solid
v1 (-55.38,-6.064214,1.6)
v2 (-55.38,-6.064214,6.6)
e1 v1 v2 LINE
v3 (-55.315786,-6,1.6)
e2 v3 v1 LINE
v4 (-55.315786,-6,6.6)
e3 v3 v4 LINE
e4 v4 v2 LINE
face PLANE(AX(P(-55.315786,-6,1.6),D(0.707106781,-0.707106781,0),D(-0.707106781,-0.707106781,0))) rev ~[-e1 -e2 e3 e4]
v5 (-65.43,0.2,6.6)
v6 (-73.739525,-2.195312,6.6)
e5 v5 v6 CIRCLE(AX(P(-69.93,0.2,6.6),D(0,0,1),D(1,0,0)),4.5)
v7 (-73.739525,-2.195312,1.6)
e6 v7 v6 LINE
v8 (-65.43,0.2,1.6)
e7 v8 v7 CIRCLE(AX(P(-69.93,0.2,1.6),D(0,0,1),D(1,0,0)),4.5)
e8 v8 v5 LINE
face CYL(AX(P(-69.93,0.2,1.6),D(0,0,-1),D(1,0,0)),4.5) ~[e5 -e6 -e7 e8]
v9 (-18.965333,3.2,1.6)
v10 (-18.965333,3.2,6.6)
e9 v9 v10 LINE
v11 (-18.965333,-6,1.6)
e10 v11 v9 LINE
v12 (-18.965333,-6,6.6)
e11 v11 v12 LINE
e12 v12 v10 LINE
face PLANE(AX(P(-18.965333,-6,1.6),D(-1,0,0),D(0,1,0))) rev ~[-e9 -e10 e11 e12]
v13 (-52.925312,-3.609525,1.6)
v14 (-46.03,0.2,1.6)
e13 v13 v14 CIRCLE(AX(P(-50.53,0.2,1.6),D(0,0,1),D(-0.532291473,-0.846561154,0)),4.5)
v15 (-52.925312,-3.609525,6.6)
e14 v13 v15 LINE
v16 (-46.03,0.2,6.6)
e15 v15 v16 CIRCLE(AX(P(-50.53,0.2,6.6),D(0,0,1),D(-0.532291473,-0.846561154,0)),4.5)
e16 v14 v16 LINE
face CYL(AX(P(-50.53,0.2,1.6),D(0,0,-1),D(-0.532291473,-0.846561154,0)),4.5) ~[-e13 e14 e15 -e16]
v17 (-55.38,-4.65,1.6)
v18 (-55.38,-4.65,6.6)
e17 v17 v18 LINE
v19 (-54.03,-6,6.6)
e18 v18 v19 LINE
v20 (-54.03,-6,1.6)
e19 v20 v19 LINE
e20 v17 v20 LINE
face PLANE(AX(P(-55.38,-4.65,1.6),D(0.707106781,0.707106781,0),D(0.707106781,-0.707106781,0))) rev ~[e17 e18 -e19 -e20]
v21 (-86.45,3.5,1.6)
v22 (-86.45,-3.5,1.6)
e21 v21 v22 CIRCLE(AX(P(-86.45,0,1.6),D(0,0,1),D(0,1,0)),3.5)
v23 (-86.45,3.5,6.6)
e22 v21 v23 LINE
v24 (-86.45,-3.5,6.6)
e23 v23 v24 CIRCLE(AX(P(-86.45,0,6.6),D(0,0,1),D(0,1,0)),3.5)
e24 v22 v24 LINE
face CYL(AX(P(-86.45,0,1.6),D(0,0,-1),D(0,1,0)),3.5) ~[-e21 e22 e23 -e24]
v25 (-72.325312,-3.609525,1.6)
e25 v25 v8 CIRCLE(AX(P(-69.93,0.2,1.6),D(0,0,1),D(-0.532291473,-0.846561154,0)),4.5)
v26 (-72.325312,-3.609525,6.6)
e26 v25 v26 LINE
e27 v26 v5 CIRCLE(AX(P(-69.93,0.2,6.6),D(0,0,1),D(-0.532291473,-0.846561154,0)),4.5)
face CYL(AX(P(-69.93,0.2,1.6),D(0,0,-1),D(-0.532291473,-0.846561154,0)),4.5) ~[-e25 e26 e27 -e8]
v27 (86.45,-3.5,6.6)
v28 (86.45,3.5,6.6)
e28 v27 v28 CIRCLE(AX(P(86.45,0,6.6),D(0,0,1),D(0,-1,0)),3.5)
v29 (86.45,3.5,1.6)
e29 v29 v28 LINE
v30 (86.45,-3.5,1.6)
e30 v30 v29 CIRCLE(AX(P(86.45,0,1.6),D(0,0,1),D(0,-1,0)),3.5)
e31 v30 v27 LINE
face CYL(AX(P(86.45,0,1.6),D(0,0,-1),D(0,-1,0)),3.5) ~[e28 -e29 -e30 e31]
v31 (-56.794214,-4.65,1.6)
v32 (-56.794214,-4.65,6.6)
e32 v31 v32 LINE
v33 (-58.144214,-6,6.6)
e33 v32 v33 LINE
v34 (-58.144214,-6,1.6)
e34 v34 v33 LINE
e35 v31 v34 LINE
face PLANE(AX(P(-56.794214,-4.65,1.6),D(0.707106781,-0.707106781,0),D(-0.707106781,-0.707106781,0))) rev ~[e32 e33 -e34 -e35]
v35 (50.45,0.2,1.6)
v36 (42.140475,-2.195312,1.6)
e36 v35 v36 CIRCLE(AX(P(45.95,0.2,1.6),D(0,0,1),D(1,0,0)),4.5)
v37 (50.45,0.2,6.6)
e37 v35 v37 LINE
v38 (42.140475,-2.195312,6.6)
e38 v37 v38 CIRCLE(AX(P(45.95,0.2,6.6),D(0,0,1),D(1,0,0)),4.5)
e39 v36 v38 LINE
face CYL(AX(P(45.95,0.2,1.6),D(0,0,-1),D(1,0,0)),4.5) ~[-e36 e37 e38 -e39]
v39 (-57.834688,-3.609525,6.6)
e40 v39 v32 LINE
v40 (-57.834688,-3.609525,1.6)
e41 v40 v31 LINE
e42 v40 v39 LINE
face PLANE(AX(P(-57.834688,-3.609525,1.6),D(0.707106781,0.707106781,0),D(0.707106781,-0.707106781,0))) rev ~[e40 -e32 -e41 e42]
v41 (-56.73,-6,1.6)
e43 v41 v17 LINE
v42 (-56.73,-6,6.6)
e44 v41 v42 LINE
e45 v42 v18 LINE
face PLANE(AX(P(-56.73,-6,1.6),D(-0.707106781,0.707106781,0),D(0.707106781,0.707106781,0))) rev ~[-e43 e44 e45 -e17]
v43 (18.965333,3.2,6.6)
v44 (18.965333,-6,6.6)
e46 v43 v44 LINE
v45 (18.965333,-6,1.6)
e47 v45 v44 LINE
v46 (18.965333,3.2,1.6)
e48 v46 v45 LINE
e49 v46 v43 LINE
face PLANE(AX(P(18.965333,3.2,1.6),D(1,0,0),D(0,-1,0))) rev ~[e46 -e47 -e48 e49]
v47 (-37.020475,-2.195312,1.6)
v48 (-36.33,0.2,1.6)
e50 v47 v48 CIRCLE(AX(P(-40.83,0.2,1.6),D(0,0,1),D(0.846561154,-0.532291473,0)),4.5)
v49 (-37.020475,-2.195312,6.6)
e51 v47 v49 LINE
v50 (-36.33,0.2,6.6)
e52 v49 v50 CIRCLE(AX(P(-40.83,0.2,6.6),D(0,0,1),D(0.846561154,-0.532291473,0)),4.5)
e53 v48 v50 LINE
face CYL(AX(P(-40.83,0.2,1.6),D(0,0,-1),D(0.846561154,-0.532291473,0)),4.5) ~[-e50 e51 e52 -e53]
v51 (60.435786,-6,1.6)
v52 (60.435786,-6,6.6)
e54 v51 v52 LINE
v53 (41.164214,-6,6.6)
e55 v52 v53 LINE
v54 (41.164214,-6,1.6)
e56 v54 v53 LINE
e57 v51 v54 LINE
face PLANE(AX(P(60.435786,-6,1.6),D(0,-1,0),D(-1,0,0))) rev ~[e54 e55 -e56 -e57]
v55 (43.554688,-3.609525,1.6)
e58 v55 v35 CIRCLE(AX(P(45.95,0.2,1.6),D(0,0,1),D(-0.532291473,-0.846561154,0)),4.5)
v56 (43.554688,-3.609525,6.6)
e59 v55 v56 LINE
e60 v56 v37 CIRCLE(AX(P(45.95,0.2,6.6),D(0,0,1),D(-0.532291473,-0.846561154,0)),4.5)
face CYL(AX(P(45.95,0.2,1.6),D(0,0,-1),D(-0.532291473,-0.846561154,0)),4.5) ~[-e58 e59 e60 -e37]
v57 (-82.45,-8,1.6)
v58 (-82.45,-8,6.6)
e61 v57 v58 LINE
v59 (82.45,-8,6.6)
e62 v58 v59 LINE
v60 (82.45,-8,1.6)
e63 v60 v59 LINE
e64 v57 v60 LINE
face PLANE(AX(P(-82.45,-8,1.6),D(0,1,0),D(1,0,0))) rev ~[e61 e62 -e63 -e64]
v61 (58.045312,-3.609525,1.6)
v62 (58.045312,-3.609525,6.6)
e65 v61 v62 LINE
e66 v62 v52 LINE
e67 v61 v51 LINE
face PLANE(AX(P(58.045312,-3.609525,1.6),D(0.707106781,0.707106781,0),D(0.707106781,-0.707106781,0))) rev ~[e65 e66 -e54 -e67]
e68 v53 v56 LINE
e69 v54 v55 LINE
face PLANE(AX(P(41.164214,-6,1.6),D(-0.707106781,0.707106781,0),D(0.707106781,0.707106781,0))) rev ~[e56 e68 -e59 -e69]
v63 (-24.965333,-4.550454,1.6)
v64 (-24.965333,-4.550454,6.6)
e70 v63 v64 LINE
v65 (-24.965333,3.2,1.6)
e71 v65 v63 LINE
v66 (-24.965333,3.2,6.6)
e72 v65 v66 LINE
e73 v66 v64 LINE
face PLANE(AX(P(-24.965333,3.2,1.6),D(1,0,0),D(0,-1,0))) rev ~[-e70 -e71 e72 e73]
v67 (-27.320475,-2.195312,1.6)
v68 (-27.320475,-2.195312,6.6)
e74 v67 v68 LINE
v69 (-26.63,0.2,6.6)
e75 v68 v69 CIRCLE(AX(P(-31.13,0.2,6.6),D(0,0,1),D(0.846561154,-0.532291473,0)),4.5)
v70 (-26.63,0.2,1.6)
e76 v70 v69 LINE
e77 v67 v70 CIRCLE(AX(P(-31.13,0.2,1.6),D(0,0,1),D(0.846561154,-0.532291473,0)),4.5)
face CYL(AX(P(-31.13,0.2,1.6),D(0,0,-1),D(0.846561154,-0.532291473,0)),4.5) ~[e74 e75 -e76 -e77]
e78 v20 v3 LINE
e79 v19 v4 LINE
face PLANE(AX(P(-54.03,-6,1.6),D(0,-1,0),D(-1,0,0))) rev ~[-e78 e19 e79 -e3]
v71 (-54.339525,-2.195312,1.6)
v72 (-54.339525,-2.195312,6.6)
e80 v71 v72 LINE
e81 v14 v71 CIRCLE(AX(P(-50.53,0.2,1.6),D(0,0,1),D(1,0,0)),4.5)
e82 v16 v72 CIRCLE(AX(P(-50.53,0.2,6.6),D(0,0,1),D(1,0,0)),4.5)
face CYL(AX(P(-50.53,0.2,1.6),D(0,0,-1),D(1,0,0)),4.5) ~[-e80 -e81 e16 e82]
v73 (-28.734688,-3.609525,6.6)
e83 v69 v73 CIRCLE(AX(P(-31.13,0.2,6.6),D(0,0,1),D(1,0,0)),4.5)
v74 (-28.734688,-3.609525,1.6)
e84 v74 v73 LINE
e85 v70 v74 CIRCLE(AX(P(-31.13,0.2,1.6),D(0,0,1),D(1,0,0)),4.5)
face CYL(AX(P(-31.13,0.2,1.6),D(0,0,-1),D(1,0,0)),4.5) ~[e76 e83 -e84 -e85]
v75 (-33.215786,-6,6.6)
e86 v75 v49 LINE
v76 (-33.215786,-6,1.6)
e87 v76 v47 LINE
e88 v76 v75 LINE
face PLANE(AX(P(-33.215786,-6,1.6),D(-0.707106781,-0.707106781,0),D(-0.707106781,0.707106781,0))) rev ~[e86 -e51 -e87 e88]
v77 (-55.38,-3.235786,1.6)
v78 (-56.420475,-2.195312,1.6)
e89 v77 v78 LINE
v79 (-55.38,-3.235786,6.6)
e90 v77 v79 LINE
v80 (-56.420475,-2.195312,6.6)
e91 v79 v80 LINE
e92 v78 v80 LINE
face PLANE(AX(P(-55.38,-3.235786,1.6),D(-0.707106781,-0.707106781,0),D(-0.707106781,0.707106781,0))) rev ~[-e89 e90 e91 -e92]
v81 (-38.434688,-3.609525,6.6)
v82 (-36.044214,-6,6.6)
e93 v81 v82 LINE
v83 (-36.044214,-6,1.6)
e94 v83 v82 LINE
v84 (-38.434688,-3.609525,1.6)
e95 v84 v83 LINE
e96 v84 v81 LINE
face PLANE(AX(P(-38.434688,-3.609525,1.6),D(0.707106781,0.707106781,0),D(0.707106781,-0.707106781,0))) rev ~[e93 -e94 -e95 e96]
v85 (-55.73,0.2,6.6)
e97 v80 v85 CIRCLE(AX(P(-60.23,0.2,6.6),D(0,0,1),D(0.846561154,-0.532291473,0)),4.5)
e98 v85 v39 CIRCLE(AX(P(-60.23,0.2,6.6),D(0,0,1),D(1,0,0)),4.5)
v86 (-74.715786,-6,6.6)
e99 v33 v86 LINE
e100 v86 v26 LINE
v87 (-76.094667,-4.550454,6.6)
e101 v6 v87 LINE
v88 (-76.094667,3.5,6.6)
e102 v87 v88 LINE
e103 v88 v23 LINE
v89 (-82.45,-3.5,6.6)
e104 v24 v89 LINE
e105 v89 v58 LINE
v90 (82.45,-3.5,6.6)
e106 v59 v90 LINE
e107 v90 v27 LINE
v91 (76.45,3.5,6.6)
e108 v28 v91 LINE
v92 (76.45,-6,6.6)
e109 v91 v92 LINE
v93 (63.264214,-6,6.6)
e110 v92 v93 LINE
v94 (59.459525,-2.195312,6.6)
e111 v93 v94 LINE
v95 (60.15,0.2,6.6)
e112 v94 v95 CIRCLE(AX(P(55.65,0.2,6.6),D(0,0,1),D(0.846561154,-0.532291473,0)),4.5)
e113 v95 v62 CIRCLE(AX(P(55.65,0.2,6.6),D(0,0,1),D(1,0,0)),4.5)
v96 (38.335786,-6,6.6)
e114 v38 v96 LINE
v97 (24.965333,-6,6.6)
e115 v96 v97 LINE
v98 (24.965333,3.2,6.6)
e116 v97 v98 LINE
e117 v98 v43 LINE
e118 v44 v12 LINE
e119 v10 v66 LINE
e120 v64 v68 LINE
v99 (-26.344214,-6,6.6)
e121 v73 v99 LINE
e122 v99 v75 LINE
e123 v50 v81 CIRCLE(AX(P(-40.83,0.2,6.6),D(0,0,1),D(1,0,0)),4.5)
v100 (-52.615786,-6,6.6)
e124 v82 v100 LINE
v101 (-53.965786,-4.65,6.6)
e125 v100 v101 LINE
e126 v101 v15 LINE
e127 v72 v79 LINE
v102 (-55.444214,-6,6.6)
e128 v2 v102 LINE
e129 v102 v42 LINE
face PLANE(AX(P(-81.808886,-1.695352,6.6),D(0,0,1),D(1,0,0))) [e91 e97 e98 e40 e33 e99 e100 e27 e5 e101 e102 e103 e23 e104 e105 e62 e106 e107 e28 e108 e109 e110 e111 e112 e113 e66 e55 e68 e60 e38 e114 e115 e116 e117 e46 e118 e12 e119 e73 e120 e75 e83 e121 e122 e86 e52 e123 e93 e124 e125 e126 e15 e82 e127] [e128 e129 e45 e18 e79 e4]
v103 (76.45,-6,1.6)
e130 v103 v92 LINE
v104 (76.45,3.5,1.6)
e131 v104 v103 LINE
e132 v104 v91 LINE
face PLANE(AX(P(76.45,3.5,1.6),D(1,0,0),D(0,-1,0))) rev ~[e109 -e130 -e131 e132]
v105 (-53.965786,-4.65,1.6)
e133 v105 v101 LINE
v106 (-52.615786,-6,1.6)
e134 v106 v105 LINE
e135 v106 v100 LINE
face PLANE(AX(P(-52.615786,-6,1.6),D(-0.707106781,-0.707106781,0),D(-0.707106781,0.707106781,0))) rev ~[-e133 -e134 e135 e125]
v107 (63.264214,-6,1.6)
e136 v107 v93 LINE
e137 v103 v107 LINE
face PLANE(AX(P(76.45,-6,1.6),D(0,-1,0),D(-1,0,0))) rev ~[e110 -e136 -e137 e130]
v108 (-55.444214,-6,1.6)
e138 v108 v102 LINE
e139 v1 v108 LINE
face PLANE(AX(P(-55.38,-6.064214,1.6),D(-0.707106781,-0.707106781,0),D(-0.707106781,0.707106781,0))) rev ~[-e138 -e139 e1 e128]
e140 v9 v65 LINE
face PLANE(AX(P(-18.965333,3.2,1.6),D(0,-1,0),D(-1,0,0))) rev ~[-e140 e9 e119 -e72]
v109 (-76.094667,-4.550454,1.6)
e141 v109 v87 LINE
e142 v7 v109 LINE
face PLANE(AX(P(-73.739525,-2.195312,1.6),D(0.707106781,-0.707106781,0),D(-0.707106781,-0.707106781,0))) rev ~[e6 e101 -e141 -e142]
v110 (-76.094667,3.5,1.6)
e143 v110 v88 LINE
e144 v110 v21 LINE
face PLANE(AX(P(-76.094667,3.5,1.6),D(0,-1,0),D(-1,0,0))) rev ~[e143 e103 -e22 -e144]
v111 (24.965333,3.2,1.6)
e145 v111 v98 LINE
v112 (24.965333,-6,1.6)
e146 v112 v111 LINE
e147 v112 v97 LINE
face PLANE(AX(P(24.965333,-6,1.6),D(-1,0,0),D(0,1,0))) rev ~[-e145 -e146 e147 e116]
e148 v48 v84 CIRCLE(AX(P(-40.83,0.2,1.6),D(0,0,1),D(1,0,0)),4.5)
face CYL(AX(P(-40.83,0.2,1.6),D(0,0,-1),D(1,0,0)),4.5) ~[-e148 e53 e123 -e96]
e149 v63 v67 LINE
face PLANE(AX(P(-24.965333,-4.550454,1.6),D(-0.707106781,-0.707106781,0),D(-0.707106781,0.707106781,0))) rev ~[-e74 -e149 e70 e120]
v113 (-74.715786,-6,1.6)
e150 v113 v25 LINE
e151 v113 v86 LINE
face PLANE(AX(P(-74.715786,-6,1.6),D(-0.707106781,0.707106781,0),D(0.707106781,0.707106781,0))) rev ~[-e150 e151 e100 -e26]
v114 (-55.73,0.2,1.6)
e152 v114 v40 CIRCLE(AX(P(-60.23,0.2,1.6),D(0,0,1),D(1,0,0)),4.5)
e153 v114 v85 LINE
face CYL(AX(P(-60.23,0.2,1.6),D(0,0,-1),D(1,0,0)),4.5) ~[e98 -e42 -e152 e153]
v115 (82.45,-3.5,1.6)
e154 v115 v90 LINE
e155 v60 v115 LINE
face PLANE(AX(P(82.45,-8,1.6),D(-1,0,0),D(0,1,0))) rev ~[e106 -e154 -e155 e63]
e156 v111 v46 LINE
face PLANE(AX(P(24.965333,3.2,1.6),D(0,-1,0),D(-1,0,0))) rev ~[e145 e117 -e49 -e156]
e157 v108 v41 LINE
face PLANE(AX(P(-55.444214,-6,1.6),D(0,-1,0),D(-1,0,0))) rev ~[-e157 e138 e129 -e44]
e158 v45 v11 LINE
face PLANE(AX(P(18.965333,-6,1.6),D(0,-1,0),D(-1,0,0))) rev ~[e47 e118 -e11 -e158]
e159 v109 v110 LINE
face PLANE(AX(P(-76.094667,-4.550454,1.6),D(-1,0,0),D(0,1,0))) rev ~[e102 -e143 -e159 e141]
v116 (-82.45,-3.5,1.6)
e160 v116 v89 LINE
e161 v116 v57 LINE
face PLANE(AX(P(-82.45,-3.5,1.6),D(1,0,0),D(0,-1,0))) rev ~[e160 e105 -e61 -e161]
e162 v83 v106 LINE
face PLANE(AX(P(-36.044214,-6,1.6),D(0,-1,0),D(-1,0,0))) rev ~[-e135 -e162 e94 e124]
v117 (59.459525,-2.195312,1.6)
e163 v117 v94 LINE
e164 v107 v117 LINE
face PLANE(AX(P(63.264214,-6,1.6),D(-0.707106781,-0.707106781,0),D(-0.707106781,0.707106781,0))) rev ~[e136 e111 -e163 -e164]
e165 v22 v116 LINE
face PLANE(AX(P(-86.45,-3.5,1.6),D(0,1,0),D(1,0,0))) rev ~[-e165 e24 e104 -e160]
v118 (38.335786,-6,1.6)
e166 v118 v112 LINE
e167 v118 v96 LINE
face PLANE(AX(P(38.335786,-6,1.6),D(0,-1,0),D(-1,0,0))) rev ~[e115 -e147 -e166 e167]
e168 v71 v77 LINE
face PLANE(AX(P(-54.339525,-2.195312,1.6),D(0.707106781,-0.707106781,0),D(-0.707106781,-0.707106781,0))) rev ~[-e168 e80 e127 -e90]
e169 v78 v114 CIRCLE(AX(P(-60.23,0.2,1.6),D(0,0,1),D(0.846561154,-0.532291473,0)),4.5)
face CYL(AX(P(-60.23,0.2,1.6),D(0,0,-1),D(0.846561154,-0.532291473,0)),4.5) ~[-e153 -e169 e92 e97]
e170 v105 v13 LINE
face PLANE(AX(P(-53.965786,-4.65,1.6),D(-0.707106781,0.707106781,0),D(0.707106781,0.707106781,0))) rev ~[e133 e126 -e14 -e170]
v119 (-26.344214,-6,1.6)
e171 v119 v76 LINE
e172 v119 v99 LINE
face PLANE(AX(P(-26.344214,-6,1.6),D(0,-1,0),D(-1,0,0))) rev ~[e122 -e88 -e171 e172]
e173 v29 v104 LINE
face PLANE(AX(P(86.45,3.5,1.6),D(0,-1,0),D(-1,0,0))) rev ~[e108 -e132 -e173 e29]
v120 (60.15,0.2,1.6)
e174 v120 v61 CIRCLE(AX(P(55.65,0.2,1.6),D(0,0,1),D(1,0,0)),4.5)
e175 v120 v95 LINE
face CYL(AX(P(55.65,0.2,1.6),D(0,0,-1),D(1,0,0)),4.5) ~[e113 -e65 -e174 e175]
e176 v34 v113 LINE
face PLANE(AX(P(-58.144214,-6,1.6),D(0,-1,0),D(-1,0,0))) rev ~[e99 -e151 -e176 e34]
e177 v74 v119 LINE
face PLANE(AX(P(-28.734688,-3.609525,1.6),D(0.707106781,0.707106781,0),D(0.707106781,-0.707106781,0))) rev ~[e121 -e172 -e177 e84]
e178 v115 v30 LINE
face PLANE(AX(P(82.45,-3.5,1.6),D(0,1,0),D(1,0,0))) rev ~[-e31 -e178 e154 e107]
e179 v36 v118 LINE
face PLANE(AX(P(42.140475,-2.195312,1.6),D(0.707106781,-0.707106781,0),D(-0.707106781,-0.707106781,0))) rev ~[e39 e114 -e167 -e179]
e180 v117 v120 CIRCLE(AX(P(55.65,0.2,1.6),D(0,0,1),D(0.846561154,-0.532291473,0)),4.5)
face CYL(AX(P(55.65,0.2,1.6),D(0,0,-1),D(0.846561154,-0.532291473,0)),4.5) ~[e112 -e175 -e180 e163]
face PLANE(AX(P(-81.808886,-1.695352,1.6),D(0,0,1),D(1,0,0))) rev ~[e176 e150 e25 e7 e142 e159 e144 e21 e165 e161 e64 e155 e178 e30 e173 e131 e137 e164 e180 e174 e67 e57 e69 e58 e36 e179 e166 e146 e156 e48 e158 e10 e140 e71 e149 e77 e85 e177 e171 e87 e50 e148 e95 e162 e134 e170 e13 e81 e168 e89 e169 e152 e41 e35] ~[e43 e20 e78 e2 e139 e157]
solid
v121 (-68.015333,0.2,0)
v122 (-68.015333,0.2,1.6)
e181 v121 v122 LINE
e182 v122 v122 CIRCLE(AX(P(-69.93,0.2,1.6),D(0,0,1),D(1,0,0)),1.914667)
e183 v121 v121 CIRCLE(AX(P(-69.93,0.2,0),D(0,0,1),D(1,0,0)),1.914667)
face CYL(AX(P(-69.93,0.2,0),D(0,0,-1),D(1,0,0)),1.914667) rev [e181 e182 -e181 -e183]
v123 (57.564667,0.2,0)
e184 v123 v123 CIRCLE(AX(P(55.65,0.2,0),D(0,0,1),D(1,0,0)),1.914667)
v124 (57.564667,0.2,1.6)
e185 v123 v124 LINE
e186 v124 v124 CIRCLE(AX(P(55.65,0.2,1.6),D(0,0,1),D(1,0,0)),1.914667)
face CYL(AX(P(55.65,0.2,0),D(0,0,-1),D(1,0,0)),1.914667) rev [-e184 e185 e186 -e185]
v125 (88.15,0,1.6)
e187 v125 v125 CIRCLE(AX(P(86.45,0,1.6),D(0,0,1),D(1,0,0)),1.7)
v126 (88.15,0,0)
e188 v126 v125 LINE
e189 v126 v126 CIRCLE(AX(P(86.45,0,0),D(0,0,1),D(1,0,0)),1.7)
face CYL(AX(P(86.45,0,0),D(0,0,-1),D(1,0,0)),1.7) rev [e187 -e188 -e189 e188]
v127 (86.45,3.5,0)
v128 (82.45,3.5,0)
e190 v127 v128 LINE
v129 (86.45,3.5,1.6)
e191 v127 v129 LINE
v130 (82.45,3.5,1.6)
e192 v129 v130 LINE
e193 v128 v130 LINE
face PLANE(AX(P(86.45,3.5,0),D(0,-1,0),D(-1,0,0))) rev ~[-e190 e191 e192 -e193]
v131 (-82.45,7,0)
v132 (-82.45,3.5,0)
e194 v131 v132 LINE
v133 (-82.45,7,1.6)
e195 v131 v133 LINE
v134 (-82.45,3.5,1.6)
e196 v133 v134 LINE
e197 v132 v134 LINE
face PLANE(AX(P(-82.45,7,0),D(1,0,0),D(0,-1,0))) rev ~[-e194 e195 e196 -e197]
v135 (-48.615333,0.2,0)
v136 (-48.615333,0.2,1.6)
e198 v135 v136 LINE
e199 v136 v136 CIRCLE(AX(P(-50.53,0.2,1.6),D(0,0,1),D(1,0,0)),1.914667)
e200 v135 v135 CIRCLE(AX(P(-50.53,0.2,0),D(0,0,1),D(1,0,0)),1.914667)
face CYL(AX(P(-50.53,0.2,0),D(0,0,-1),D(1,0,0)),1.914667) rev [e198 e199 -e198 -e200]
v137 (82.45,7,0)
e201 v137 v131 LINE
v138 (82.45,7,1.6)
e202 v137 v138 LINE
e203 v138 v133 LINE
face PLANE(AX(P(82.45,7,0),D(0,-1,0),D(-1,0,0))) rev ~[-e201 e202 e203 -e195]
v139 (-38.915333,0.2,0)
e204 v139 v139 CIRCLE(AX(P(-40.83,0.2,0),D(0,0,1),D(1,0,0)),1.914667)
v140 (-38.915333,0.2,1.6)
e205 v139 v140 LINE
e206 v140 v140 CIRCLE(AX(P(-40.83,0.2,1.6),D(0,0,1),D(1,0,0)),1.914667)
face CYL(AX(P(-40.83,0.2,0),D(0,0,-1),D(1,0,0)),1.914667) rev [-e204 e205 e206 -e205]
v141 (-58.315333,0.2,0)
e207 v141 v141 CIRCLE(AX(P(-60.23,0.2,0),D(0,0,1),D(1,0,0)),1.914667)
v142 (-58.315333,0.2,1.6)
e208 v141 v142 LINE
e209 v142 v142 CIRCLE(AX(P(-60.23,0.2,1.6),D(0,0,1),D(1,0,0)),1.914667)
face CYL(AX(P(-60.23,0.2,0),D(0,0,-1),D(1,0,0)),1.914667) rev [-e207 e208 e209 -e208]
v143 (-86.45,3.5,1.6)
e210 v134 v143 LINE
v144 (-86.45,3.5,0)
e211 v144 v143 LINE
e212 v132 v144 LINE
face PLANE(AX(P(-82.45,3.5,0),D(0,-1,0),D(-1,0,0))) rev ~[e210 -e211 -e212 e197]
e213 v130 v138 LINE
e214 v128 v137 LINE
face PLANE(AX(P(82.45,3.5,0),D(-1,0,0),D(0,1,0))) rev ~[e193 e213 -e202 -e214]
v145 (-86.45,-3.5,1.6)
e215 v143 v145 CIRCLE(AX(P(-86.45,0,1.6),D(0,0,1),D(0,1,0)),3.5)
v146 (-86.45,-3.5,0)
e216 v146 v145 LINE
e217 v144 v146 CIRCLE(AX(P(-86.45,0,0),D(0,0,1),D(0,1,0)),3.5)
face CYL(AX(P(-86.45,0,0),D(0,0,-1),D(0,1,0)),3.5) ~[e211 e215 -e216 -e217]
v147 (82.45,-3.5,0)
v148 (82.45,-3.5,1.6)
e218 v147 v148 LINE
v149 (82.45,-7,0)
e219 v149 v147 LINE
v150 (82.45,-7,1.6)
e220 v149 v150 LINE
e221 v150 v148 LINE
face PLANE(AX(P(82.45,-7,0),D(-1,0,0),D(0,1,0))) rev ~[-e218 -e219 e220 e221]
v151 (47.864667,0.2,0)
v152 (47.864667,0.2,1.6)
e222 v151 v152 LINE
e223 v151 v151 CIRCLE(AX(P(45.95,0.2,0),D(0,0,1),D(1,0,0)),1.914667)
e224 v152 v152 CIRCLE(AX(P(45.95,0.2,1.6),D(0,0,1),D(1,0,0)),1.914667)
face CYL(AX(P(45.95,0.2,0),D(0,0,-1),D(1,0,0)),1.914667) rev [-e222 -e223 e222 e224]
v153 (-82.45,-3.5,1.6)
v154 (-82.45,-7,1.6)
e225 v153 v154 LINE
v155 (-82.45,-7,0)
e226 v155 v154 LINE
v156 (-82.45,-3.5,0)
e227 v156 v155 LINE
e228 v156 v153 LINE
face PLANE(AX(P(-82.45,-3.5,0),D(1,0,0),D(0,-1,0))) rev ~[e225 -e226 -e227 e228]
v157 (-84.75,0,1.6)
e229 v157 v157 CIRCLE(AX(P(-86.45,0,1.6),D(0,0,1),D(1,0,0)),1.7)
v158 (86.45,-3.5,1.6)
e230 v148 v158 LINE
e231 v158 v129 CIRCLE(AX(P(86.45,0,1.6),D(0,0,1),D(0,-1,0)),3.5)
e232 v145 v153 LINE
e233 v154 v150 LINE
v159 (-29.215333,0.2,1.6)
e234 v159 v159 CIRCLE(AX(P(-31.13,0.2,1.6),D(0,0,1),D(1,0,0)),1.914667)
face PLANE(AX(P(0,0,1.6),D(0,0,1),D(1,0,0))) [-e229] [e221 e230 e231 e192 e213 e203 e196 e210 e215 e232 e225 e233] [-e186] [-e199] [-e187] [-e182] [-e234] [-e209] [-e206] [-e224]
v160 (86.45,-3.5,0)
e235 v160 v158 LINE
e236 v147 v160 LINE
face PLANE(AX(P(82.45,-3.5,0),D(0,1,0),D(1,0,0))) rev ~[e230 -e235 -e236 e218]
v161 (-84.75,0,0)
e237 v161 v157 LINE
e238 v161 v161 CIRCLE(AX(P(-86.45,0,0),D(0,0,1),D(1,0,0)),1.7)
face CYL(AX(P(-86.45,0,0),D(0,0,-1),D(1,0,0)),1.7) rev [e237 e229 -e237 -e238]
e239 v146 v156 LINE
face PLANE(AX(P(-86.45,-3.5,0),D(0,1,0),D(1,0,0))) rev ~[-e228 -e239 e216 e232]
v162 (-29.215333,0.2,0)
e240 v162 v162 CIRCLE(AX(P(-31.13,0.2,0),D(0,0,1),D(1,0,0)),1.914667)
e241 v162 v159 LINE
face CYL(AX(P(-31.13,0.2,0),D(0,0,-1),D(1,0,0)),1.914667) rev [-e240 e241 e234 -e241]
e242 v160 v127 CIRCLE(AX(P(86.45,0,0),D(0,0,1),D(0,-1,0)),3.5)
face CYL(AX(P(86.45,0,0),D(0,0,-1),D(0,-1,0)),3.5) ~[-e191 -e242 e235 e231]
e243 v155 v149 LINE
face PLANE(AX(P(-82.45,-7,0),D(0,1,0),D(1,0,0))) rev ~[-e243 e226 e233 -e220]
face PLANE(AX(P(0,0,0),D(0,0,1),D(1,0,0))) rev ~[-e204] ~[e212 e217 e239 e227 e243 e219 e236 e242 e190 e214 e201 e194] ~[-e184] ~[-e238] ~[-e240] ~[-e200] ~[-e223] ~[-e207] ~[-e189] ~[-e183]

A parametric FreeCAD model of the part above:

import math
import FreeCAD as App
import Part
import Sketcher

V = App.Vector
Q = App.Units.Quantity

doc = App.newDocument("Part")
params = doc.addObject("Spreadsheet::Sheet", "Params")
for row, (alias, value) in enumerate([
    ("sketch1_diameter", "3.4 mm"),
    ("sketch1_radius", "3.5 mm"),
    ("sketch1_width", "4 mm"),
    ("sketch1_width2", "164.9 mm"),
    ("sketch1_height", "3.5 mm"),
    ("pad1_length", "1.6 mm"),
    ("sketch2_radius", "3.5 mm"),
    ("sketch2_radius2", "4.5 mm"),
    ("sketch2_width", "4 mm"),
    ("sketch2_width2", "10 mm"),
    ("sketch2_width3", "6 mm"),
    ("pad2_length", "5 mm"),
], start=1):
    params.set(f"A{row}", alias)
    params.set(f"B{row}", "=" + value)
    params.setAlias(f"B{row}", alias)

body = doc.addObject("PartDesign::Body", "Body")

sketch1 = body.newObject("Sketcher::SketchObject", "Sketch")
sketch1.AttachmentSupport = (doc.getObject("XY_Plane"), [""])
sketch1.MapMode = "FlatFace"
sketch1.addGeometry(Part.LineSegment(V(-82.5, -7, 0), V(82.5, -7, 0)), False)
sketch1.addGeometry(Part.LineSegment(V(82.5, -7, 0), V(82.5, -3.5, 0)), False)
sketch1.addGeometry(Part.LineSegment(V(82.5, -3.5, 0), V(86.5, -3.5, 0)), False)
sketch1.addGeometry(Part.ArcOfCircle(Part.Circle(V(86.5, 0, 0), V(0, 0, 1), 3.5), math.radians(-90), math.radians(90)), False)
sketch1.addGeometry(Part.LineSegment(V(86.5, 3.5, 0), V(82.5, 3.5, 0)), False)
sketch1.addGeometry(Part.LineSegment(V(82.5, 3.5, 0), V(82.5, 7, 0)), False)
sketch1.addGeometry(Part.LineSegment(V(82.5, 7, 0), V(-82.5, 7, 0)), False)
sketch1.addGeometry(Part.LineSegment(V(-82.5, 7, 0), V(-82.5, 3.5, 0)), False)
sketch1.addGeometry(Part.LineSegment(V(-82.5, 3.5, 0), V(-86.5, 3.5, 0)), False)
sketch1.addGeometry(Part.ArcOfCircle(Part.Circle(V(-86.5, 0, 0), V(0, 0, 1), 3.5), math.radians(90), math.radians(270)), False)
sketch1.addGeometry(Part.LineSegment(V(-86.5, -3.5, 0), V(-82.5, -3.5, 0)), False)
sketch1.addGeometry(Part.LineSegment(V(-82.5, -3.5, 0), V(-82.5, -7, 0)), False)
sketch1.addGeometry(Part.Circle(V(-86.5, 0, 0), V(0, 0, 1), 1.7), False)
sketch1.addGeometry(Part.Circle(V(86.5, 0, 0), V(0, 0, 1), 1.7), False)
sketch1.addGeometry(Part.Circle(V(-69.9, 0.2, 0), V(0, 0, 1), 1.9), False)
sketch1.addGeometry(Part.Circle(V(-60.2, 0.2, 0), V(0, 0, 1), 1.9), False)
sketch1.addGeometry(Part.Circle(V(-50.5, 0.2, 0), V(0, 0, 1), 1.9), False)
sketch1.addGeometry(Part.Circle(V(-40.8, 0.2, 0), V(0, 0, 1), 1.9), False)
sketch1.addGeometry(Part.Circle(V(-31.1, 0.2, 0), V(0, 0, 1), 1.9), False)
sketch1.addGeometry(Part.Circle(V(46, 0.2, 0), V(0, 0, 1), 1.9), False)
sketch1.addGeometry(Part.Circle(V(55.6, 0.2, 0), V(0, 0, 1), 1.9), False)
sketch1.addConstraint(Sketcher.Constraint("Coincident", 0, 2, 1, 1))
sketch1.addConstraint(Sketcher.Constraint("Coincident", 1, 2, 2, 1))
sketch1.addConstraint(Sketcher.Constraint("Tangent", 2, 2, 3, 1))
sketch1.addConstraint(Sketcher.Constraint("Tangent", 3, 2, 4, 1))
sketch1.addConstraint(Sketcher.Constraint("Coincident", 4, 2, 5, 1))
sketch1.addConstraint(Sketcher.Constraint("Coincident", 5, 2, 6, 1))
sketch1.addConstraint(Sketcher.Constraint("Coincident", 6, 2, 7, 1))
sketch1.addConstraint(Sketcher.Constraint("Coincident", 7, 2, 8, 1))
sketch1.addConstraint(Sketcher.Constraint("Tangent", 8, 2, 9, 1))
sketch1.addConstraint(Sketcher.Constraint("Tangent", 9, 2, 10, 1))
sketch1.addConstraint(Sketcher.Constraint("Coincident", 10, 2, 11, 1))
sketch1.addConstraint(Sketcher.Constraint("Coincident", 11, 2, 0, 1))
sketch1.addConstraint(Sketcher.Constraint("Horizontal", 0))
sketch1.addConstraint(Sketcher.Constraint("Vertical", 1))
sketch1.addConstraint(Sketcher.Constraint("Horizontal", 2))
sketch1.addConstraint(Sketcher.Constraint("Horizontal", 4))
sketch1.addConstraint(Sketcher.Constraint("Vertical", 5))
sketch1.addConstraint(Sketcher.Constraint("Horizontal", 6))
sketch1.addConstraint(Sketcher.Constraint("Vertical", 7))
sketch1.addConstraint(Sketcher.Constraint("Horizontal", 8))
sketch1.addConstraint(Sketcher.Constraint("Horizontal", 10))
sketch1.addConstraint(Sketcher.Constraint("Vertical", 11))
sketch1.addConstraint(Sketcher.Constraint("Coincident", 12, 3, 9, 3))
sketch1.addConstraint(Sketcher.Constraint("Coincident", 13, 3, 3, 3))
sketch1.addConstraint(Sketcher.Constraint("Equal", 3, 9))
sketch1.addConstraint(Sketcher.Constraint("Equal", 12, 13))
sketch1.addConstraint(Sketcher.Constraint("Equal", 14, 15))
sketch1.addConstraint(Sketcher.Constraint("Equal", 15, 16))
sketch1.addConstraint(Sketcher.Constraint("Equal", 16, 17))
sketch1.addConstraint(Sketcher.Constraint("Equal", 17, 18))
sketch1.addConstraint(Sketcher.Constraint("Equal", 18, 19))
sketch1.addConstraint(Sketcher.Constraint("Equal", 19, 20))
sketch1.addConstraint(Sketcher.Constraint("Symmetric", 3, 3, 9, 3, -1, 1))
sketch1.addConstraint(Sketcher.Constraint("Symmetric", 0, 2, 6, 2, -1, 1))
sketch1.addConstraint(Sketcher.Constraint("Symmetric", 4, 2, 7, 2, -2))
sketch1.addConstraint(Sketcher.Constraint("Horizontal", 14, 3, 15, 3))
sketch1.addConstraint(Sketcher.Constraint("Horizontal", 15, 3, 16, 3))
sketch1.addConstraint(Sketcher.Constraint("Horizontal", 16, 3, 17, 3))
sketch1.addConstraint(Sketcher.Constraint("Horizontal", 17, 3, 18, 3))
sketch1.addConstraint(Sketcher.Constraint("Horizontal", 18, 3, 19, 3))
sketch1.addConstraint(Sketcher.Constraint("Horizontal", 19, 3, 20, 3))
sketch1.addConstraint(Sketcher.Constraint("Vertical", 7, 2, 10, 2))
sketch1.addConstraint(Sketcher.Constraint("Diameter", 12, Q("3.4 mm")))
sketch1.addConstraint(Sketcher.Constraint("Radius", 3, Q("3.5 mm")))
sketch1.addConstraint(Sketcher.Constraint("DistanceX", 2, 1, 2, 2, Q("4 mm")))
sketch1.addConstraint(Sketcher.Constraint("DistanceX", 0, 1, 0, 2, Q("164.9 mm")))
sketch1.addConstraint(Sketcher.Constraint("DistanceY", 1, 1, 1, 2, Q("3.5 mm")))
sketch1.addConstraint(Sketcher.Constraint("DistanceY", -1, 1, 14, 3, Q("0.2 mm")))
sketch1.addConstraint(Sketcher.Constraint("DistanceX", 14, 3, 15, 3, Q("9.7 mm")))
sketch1.addConstraint(Sketcher.Constraint("DistanceX", 15, 3, 16, 3, Q("9.7 mm")))
sketch1.addConstraint(Sketcher.Constraint("DistanceX", 16, 3, 17, 3, Q("9.7 mm")))
sketch1.addConstraint(Sketcher.Constraint("DistanceX", 17, 3, 18, 3, Q("9.7 mm")))
sketch1.addConstraint(Sketcher.Constraint("DistanceX", 19, 3, 3, 3, Q("40.5 mm")))
sketch1.addConstraint(Sketcher.Constraint("DistanceX", 19, 3, 20, 3, Q("9.7 mm")))
sketch1.addConstraint(Sketcher.Constraint("DistanceX", 14, 3, -1, 1, Q("69.93 mm")))
sketch1.addConstraint(Sketcher.Constraint("Diameter", 14, Q("3.829334 mm")))
sketch1.setExpression("Constraints[42]", "Params.sketch1_diameter")
sketch1.setExpression("Constraints[43]", "Params.sketch1_radius")
sketch1.setExpression("Constraints[44]", "Params.sketch1_width")
sketch1.setExpression("Constraints[45]", "Params.sketch1_width2")
sketch1.setExpression("Constraints[46]", "Params.sketch1_height")
pad1 = body.newObject("PartDesign::Pad", "Pad")
pad1.Profile = sketch1
pad1.setExpression("Length", "Params.pad1_length")
body2 = doc.addObject("PartDesign::Body", "Body001")

sketch2 = body2.newObject("Sketcher::SketchObject", "Sketch001")
sketch2.AttachmentSupport = (doc.getObject("XY_Plane001"), [""])
sketch2.MapMode = "FlatFace"
sketch2.AttachmentOffset = App.Placement(V(0, 0, 1.6), App.Rotation())
sketch2.addGeometry(Part.LineSegment(V(-76.09, 3.5, 0), V(-86.45, 3.5, 0)), False)
sketch2.addGeometry(Part.ArcOfCircle(Part.Circle(V(-86.45, 0, 0), V(0, 0, 1), 3.5), math.radians(90), math.radians(270)), False)
sketch2.addGeometry(Part.LineSegment(V(-86.45, -3.5, 0), V(-82.45, -3.5, 0)), False)
sketch2.addGeometry(Part.LineSegment(V(-82.45, -3.5, 0), V(-82.45, -8, 0)), False)
sketch2.addGeometry(Part.LineSegment(V(-82.45, -8, 0), V(82.45, -8, 0)), False)
sketch2.addGeometry(Part.LineSegment(V(82.45, -8, 0), V(82.45, -3.5, 0)), False)
sketch2.addGeometry(Part.LineSegment(V(82.45, -3.5, 0), V(86.45, -3.5, 0)), False)
sketch2.addGeometry(Part.ArcOfCircle(Part.Circle(V(86.45, 0, 0), V(0, 0, 1), 3.5), math.radians(-90), math.radians(90)), False)
sketch2.addGeometry(Part.LineSegment(V(86.45, 3.5, 0), V(76.45, 3.5, 0)), False)
sketch2.addGeometry(Part.LineSegment(V(76.45, 3.5, 0), V(76.45, -6, 0)), False)
sketch2.addGeometry(Part.LineSegment(V(76.45, -6, 0), V(63.26, -6, 0)), False)
sketch2.addGeometry(Part.LineSegment(V(63.26, -6, 0), V(59.46, -2.2, 0)), False)
sketch2.addGeometry(Part.ArcOfCircle(Part.Circle(V(55.65, 0.2, 0), V(0, 0, 1), 4.5), math.radians(-32), math.radians(0)), False)
sketch2.addGeometry(Part.ArcOfCircle(Part.Circle(V(55.65, 0.2, 0), V(0, 0, 1), 4.5), math.radians(0), math.radians(302)), False)
sketch2.addGeometry(Part.LineSegment(V(58.05, -3.61, 0), V(60.44, -6, 0)), False)
sketch2.addGeometry(Part.LineSegment(V(60.44, -6, 0), V(41.16, -6, 0)), False)
sketch2.addGeometry(Part.LineSegment(V(41.16, -6, 0), V(43.55, -3.61, 0)), False)
sketch2.addGeometry(Part.ArcOfCircle(Part.Circle(V(45.95, 0.2, 0), V(0, 0, 1), 4.5), math.radians(-122), math.radians(0)), False)
sketch2.addGeometry(Part.ArcOfCircle(Part.Circle(V(45.95, 0.2, 0), V(0, 0, 1), 4.5), math.radians(0), math.radians(212)), False)
sketch2.addGeometry(Part.LineSegment(V(42.14, -2.2, 0), V(38.34, -6, 0)), False)
sketch2.addGeometry(Part.LineSegment(V(38.34, -6, 0), V(24.97, -6, 0)), False)
sketch2.addGeometry(Part.LineSegment(V(24.97, -6, 0), V(24.97, 3.2, 0)), False)
sketch2.addGeometry(Part.LineSegment(V(24.97, 3.2, 0), V(18.97, 3.2, 0)), False)
sketch2.addGeometry(Part.LineSegment(V(18.97, 3.2, 0), V(18.97, -6, 0)), False)
sketch2.addGeometry(Part.LineSegment(V(18.97, -6, 0), V(-18.97, -6, 0)), False)
sketch2.addGeometry(Part.LineSegment(V(-18.97, -6, 0), V(-18.97, 3.2, 0)), False)
sketch2.addGeometry(Part.LineSegment(V(-18.97, 3.2, 0), V(-24.97, 3.2, 0)), False)
sketch2.addGeometry(Part.LineSegment(V(-24.97, 3.2, 0), V(-24.97, -4.55, 0)), False)
sketch2.addGeometry(Part.LineSegment(V(-24.97, -4.55, 0), V(-27.32, -2.2, 0)), False)
sketch2.addGeometry(Part.ArcOfCircle(Part.Circle(V(-31.13, 0.2, 0), V(0, 0, 1), 4.5), math.radians(-32), math.radians(0)), False)
sketch2.addGeometry(Part.ArcOfCircle(Part.Circle(V(-31.13, 0.2, 0), V(0, 0, 1), 4.5), math.radians(0), math.radians(302)), False)
sketch2.addGeometry(Part.LineSegment(V(-28.73, -3.61, 0), V(-26.34, -6, 0)), False)
sketch2.addGeometry(Part.LineSegment(V(-26.34, -6, 0), V(-33.22, -6, 0)), False)
sketch2.addGeometry(Part.LineSegment(V(-33.22, -6, 0), V(-37.02, -2.2, 0)), False)
sketch2.addGeometry(Part.ArcOfCircle(Part.Circle(V(-40.83, 0.2, 0), V(0, 0, 1), 4.5), math.radians(-32), math.radians(0)), False)
sketch2.addGeometry(Part.ArcOfCircle(Part.Circle(V(-40.83, 0.2, 0), V(0, 0, 1), 4.5), math.radians(0), math.radians(302)), False)
sketch2.addGeometry(Part.LineSegment(V(-38.43, -3.61, 0), V(-36.04, -6, 0)), False)
sketch2.addGeometry(Part.LineSegment(V(-36.04, -6, 0), V(-52.62, -6, 0)), False)
sketch2.addGeometry(Part.LineSegment(V(-52.62, -6, 0), V(-53.97, -4.65, 0)), False)
sketch2.addGeometry(Part.LineSegment(V(-53.97, -4.65, 0), V(-52.93, -3.61, 0)), False)
sketch2.addGeometry(Part.ArcOfCircle(Part.Circle(V(-50.53, 0.2, 0), V(0, 0, 1), 4.5), math.radians(-122), math.radians(0)), False)
sketch2.addGeometry(Part.ArcOfCircle(Part.Circle(V(-50.53, 0.2, 0), V(0, 0, 1), 4.5), math.radians(0), math.radians(212)), False)
sketch2.addGeometry(Part.LineSegment(V(-54.34, -2.2, 0), V(-55.38, -3.24, 0)), False)
sketch2.addGeometry(Part.LineSegment(V(-55.38, -3.24, 0), V(-56.42, -2.2, 0)), False)
sketch2.addGeometry(Part.ArcOfCircle(Part.Circle(V(-60.23, 0.2, 0), V(0, 0, 1), 4.5), math.radians(-32), math.radians(0)), False)
sketch2.addGeometry(Part.ArcOfCircle(Part.Circle(V(-60.23, 0.2, 0), V(0, 0, 1), 4.5), math.radians(0), math.radians(302)), False)
sketch2.addGeometry(Part.LineSegment(V(-57.83, -3.61, 0), V(-56.79, -4.65, 0)), False)
sketch2.addGeometry(Part.LineSegment(V(-56.79, -4.65, 0), V(-58.14, -6, 0)), False)
sketch2.addGeometry(Part.LineSegment(V(-58.14, -6, 0), V(-74.72, -6, 0)), False)
sketch2.addGeometry(Part.LineSegment(V(-74.72, -6, 0), V(-72.33, -3.61, 0)), False)
sketch2.addGeometry(Part.ArcOfCircle(Part.Circle(V(-69.93, 0.2, 0), V(0, 0, 1), 4.5), math.radians(-122), math.radians(0)), False)
sketch2.addGeometry(Part.ArcOfCircle(Part.Circle(V(-69.93, 0.2, 0), V(0, 0, 1), 4.5), math.radians(0), math.radians(212)), False)
sketch2.addGeometry(Part.LineSegment(V(-73.74, -2.2, 0), V(-76.09, -4.55, 0)), False)
sketch2.addGeometry(Part.LineSegment(V(-76.09, -4.55, 0), V(-76.09, 3.5, 0)), False)
sketch2.addGeometry(Part.LineSegment(V(-54.03, -6, 0), V(-55.32, -6, 0)), False)
sketch2.addGeometry(Part.LineSegment(V(-55.32, -6, 0), V(-55.38, -6.06, 0)), False)
sketch2.addGeometry(Part.LineSegment(V(-55.38, -6.06, 0), V(-55.44, -6, 0)), False)
sketch2.addGeometry(Part.LineSegment(V(-55.44, -6, 0), V(-56.73, -6, 0)), False)
sketch2.addGeometry(Part.LineSegment(V(-56.73, -6, 0), V(-55.38, -4.65, 0)), False)
sketch2.addGeometry(Part.LineSegment(V(-55.38, -4.65, 0), V(-54.03, -6, 0)), False)
sketch2.addConstraint(Sketcher.Constraint("Tangent", 0, 2, 1, 1))
sketch2.addConstraint(Sketcher.Constraint("Tangent", 1, 2, 2, 1))
sketch2.addConstraint(Sketcher.Constraint("Coincident", 2, 2, 3, 1))
sketch2.addConstraint(Sketcher.Constraint("Coincident", 3, 2, 4, 1))
sketch2.addConstraint(Sketcher.Constraint("Coincident", 4, 2, 5, 1))
sketch2.addConstraint(Sketcher.Constraint("Coincident", 5, 2, 6, 1))
sketch2.addConstraint(Sketcher.Constraint("Tangent", 6, 2, 7, 1))
sketch2.addConstraint(Sketcher.Constraint("Tangent", 7, 2, 8, 1))
sketch2.addConstraint(Sketcher.Constraint("Coincident", 8, 2, 9, 1))
sketch2.addConstraint(Sketcher.Constraint("Coincident", 9, 2, 10, 1))
sketch2.addConstraint(Sketcher.Constraint("Coincident", 10, 2, 11, 1))
sketch2.addConstraint(Sketcher.Constraint("Coincident", 11, 2, 12, 1))
sketch2.addConstraint(Sketcher.Constraint("Tangent", 12, 2, 13, 1))
sketch2.addConstraint(Sketcher.Constraint("Coincident", 13, 2, 14, 1))
sketch2.addConstraint(Sketcher.Constraint("Coincident", 14, 2, 15, 1))
sketch2.addConstraint(Sketcher.Constraint("Coincident", 15, 2, 16, 1))
sketch2.addConstraint(Sketcher.Constraint("Coincident", 16, 2, 17, 1))
sketch2.addConstraint(Sketcher.Constraint("Tangent", 17, 2, 18, 1))
sketch2.addConstraint(Sketcher.Constraint("Coincident", 18, 2, 19, 1))
sketch2.addConstraint(Sketcher.Constraint("Coincident", 19, 2, 20, 1))
sketch2.addConstraint(Sketcher.Constraint("Coincident", 20, 2, 21, 1))
sketch2.addConstraint(Sketcher.Constraint("Coincident", 21, 2, 22, 1))
sketch2.addConstraint(Sketcher.Constraint("Coincident", 22, 2, 23, 1))
sketch2.addConstraint(Sketcher.Constraint("Coincident", 23, 2, 24, 1))
sketch2.addConstraint(Sketcher.Constraint("Coincident", 24, 2, 25, 1))
sketch2.addConstraint(Sketcher.Constraint("Coincident", 25, 2, 26, 1))
sketch2.addConstraint(Sketcher.Constraint("Coincident", 26, 2, 27, 1))
sketch2.addConstraint(Sketcher.Constraint("Coincident", 27, 2, 28, 1))
sketch2.addConstraint(Sketcher.Constraint("Coincident", 28, 2, 29, 1))
sketch2.addConstraint(Sketcher.Constraint("Tangent", 29, 2, 30, 1))
sketch2.addConstraint(Sketcher.Constraint("Coincident", 30, 2, 31, 1))
sketch2.addConstraint(Sketcher.Constraint("Coincident", 31, 2, 32, 1))
sketch2.addConstraint(Sketcher.Constraint("Coincident", 32, 2, 33, 1))
sketch2.addConstraint(Sketcher.Constraint("Coincident", 33, 2, 34, 1))
sketch2.addConstraint(Sketcher.Constraint("Tangent", 34, 2, 35, 1))
sketch2.addConstraint(Sketcher.Constraint("Coincident", 35, 2, 36, 1))
sketch2.addConstraint(Sketcher.Constraint("Coincident", 36, 2, 37, 1))
sketch2.addConstraint(Sketcher.Constraint("Coincident", 37, 2, 38, 1))
sketch2.addConstraint(Sketcher.Constraint("Coincident", 38, 2, 39, 1))
sketch2.addConstraint(Sketcher.Constraint("Coincident", 39, 2, 40, 1))
sketch2.addConstraint(Sketcher.Constraint("Tangent", 40, 2, 41, 1))
sketch2.addConstraint(Sketcher.Constraint("Coincident", 41, 2, 42, 1))
sketch2.addConstraint(Sketcher.Constraint("Coincident", 42, 2, 43, 1))
sketch2.addConstraint(Sketcher.Constraint("Coincident", 43, 2, 44, 1))
sketch2.addConstraint(Sketcher.Constraint("Tangent", 44, 2, 45, 1))
sketch2.addConstraint(Sketcher.Constraint("Coincident", 45, 2, 46, 1))
sketch2.addConstraint(Sketcher.Constraint("Coincident", 46, 2, 47, 1))
sketch2.addConstraint(Sketcher.Constraint("Coincident", 47, 2, 48, 1))
sketch2.addConstraint(Sketcher.Constraint("Coincident", 48, 2, 49, 1))
sketch2.addConstraint(Sketcher.Constraint("Coincident", 49, 2, 50, 1))
sketch2.addConstraint(Sketcher.Constraint("Tangent", 50, 2, 51, 1))
sketch2.addConstraint(Sketcher.Constraint("Coincident", 51, 2, 52, 1))
sketch2.addConstraint(Sketcher.Constraint("Coincident", 52, 2, 53, 1))
sketch2.addConstraint(Sketcher.Constraint("Coincident", 53, 2, 0, 1))
sketch2.addConstraint(Sketcher.Constraint("Coincident", 54, 2, 55, 1))
sketch2.addConstraint(Sketcher.Constraint("Coincident", 55, 2, 56, 1))
sketch2.addConstraint(Sketcher.Constraint("Coincident", 56, 2, 57, 1))
sketch2.addConstraint(Sketcher.Constraint("Coincident", 57, 2, 58, 1))
sketch2.addConstraint(Sketcher.Constraint("Coincident", 58, 2, 59, 1))
sketch2.addConstraint(Sketcher.Constraint("Coincident", 59, 2, 54, 1))
sketch2.addConstraint(Sketcher.Constraint("Horizontal", 0))
sketch2.addConstraint(Sketcher.Constraint("Horizontal", 2))
sketch2.addConstraint(Sketcher.Constraint("Vertical", 3))
sketch2.addConstraint(Sketcher.Constraint("Horizontal", 4))
sketch2.addConstraint(Sketcher.Constraint("Vertical", 5))
sketch2.addConstraint(Sketcher.Constraint("Horizontal", 6))
sketch2.addConstraint(Sketcher.Constraint("Horizontal", 8))
sketch2.addConstraint(Sketcher.Constraint("Vertical", 9))
sketch2.addConstraint(Sketcher.Constraint("Horizontal", 10))
sketch2.addConstraint(Sketcher.Constraint("Horizontal", 15))
sketch2.addConstraint(Sketcher.Constraint("Horizontal", 20))
sketch2.addConstraint(Sketcher.Constraint("Vertical", 21))
sketch2.addConstraint(Sketcher.Constraint("Horizontal", 22))
sketch2.addConstraint(Sketcher.Constraint("Vertical", 23))
sketch2.addConstraint(Sketcher.Constraint("Horizontal", 24))
sketch2.addConstraint(Sketcher.Constraint("Vertical", 25))
sketch2.addConstraint(Sketcher.Constraint("Horizontal", 26))
sketch2.addConstraint(Sketcher.Constraint("Vertical", 27))
sketch2.addConstraint(Sketcher.Constraint("Horizontal", 32))
sketch2.addConstraint(Sketcher.Constraint("Horizontal", 37))
sketch2.addConstraint(Sketcher.Constraint("Horizontal", 48))
sketch2.addConstraint(Sketcher.Constraint("Vertical", 53))
sketch2.addConstraint(Sketcher.Constraint("Horizontal", 54))
sketch2.addConstraint(Sketcher.Constraint("Horizontal", 57))
sketch2.addConstraint(Sketcher.Constraint("Equal", 1, 7))
sketch2.addConstraint(Sketcher.Constraint("Equal", 12, 13))
sketch2.addConstraint(Sketcher.Constraint("Equal", 13, 17))
sketch2.addConstraint(Sketcher.Constraint("Equal", 17, 18))
sketch2.addConstraint(Sketcher.Constraint("Equal", 18, 29))
sketch2.addConstraint(Sketcher.Constraint("Equal", 29, 30))
sketch2.addConstraint(Sketcher.Constraint("Equal", 30, 34))
sketch2.addConstraint(Sketcher.Constraint("Equal", 34, 35))
sketch2.addConstraint(Sketcher.Constraint("Equal", 35, 40))
sketch2.addConstraint(Sketcher.Constraint("Equal", 40, 41))
sketch2.addConstraint(Sketcher.Constraint("Equal", 41, 44))
sketch2.addConstraint(Sketcher.Constraint("Equal", 44, 45))
sketch2.addConstraint(Sketcher.Constraint("Equal", 45, 50))
sketch2.addConstraint(Sketcher.Constraint("Equal", 50, 51))
sketch2.addConstraint(Sketcher.Constraint("Symmetric", 1, 3, 7, 3, -1, 1))
sketch2.addConstraint(Sketcher.Constraint("Symmetric", 2, 2, 5, 2, -2))
sketch2.addConstraint(Sketcher.Constraint("Symmetric", 22, 2, 25, 2, -2))
sketch2.addConstraint(Sketcher.Constraint("Parallel", 11, 14))
sketch2.addConstraint(Sketcher.Constraint("Perpendicular", 14, 16))
sketch2.addConstraint(Sketcher.Constraint("Parallel", 16, 19))
sketch2.addConstraint(Sketcher.Constraint("Perpendicular", 19, 28))
sketch2.addConstraint(Sketcher.Constraint("Parallel", 28, 31))
sketch2.addConstraint(Sketcher.Constraint("Parallel", 31, 33))
sketch2.addConstraint(Sketcher.Constraint("Parallel", 33, 36))
sketch2.addConstraint(Sketcher.Constraint("Parallel", 36, 38))
sketch2.addConstraint(Sketcher.Constraint("Perpendicular", 38, 39))
sketch2.addConstraint(Sketcher.Constraint("Parallel", 39, 42))
sketch2.addConstraint(Sketcher.Constraint("Perpendicular", 42, 43))
sketch2.addConstraint(Sketcher.Constraint("Parallel", 43, 46))
sketch2.addConstraint(Sketcher.Constraint("Perpendicular", 46, 47))
sketch2.addConstraint(Sketcher.Constraint("Parallel", 47, 49))
sketch2.addConstraint(Sketcher.Constraint("Parallel", 49, 52))
sketch2.addConstraint(Sketcher.Constraint("Parallel", 52, 55))
sketch2.addConstraint(Sketcher.Constraint("Perpendicular", 55, 56))
sketch2.addConstraint(Sketcher.Constraint("Perpendicular", 56, 58))
sketch2.addConstraint(Sketcher.Constraint("Perpendicular", 58, 59))
sketch2.addConstraint(Sketcher.Constraint("Horizontal", 13, 3, 17, 3))
sketch2.addConstraint(Sketcher.Constraint("Horizontal", 18, 3, 29, 3))
sketch2.addConstraint(Sketcher.Constraint("Horizontal", 30, 3, 34, 3))
sketch2.addConstraint(Sketcher.Constraint("Horizontal", 35, 3, 40, 3))
sketch2.addConstraint(Sketcher.Constraint("Horizontal", 41, 3, 44, 3))
sketch2.addConstraint(Sketcher.Constraint("Horizontal", 45, 3, 50, 3))
sketch2.addConstraint(Sketcher.Constraint("Horizontal", 51, 3, 12, 2))
sketch2.addConstraint(Sketcher.Constraint("Horizontal", 10, 2, 14, 2))
sketch2.addConstraint(Sketcher.Constraint("Horizontal", 13, 2, 16, 2))
sketch2.addConstraint(Sketcher.Constraint("Horizontal", 12, 2, 17, 2))
sketch2.addConstraint(Sketcher.Constraint("Horizontal", 11, 2, 18, 2))
sketch2.addConstraint(Sketcher.Constraint("Horizontal", 15, 2, 19, 2))
sketch2.addConstraint(Sketcher.Constraint("Horizontal", 20, 2, 23, 2))
sketch2.addConstraint(Sketcher.Constraint("Horizontal", 18, 2, 28, 2))
sketch2.addConstraint(Sketcher.Constraint("Horizontal", 17, 2, 29, 2))
sketch2.addConstraint(Sketcher.Constraint("Horizontal", 16, 2, 30, 2))
sketch2.addConstraint(Sketcher.Constraint("Horizontal", 24, 2, 31, 2))
sketch2.addConstraint(Sketcher.Constraint("Horizontal", 28, 2, 33, 2))
sketch2.addConstraint(Sketcher.Constraint("Horizontal", 29, 2, 34, 2))
sketch2.addConstraint(Sketcher.Constraint("Horizontal", 30, 2, 35, 2))
sketch2.addConstraint(Sketcher.Constraint("Horizontal", 32, 2, 36, 2))
sketch2.addConstraint(Sketcher.Constraint("Horizontal", 35, 2, 39, 2))
sketch2.addConstraint(Sketcher.Constraint("Horizontal", 34, 2, 40, 2))
sketch2.addConstraint(Sketcher.Constraint("Horizontal", 33, 2, 41, 2))
sketch2.addConstraint(Sketcher.Constraint("Horizontal", 41, 2, 43, 2))
sketch2.addConstraint(Sketcher.Constraint("Horizontal", 40, 2, 44, 2))
sketch2.addConstraint(Sketcher.Constraint("Horizontal", 39, 2, 45, 2))
sketch2.addConstraint(Sketcher.Constraint("Horizontal", 38, 2, 46, 2))
sketch2.addConstraint(Sketcher.Constraint("Horizontal", 37, 2, 47, 2))
sketch2.addConstraint(Sketcher.Constraint("Horizontal", 45, 2, 49, 2))
sketch2.addConstraint(Sketcher.Constraint("Horizontal", 44, 2, 50, 2))
sketch2.addConstraint(Sketcher.Constraint("Horizontal", 43, 2, 51, 2))
sketch2.addConstraint(Sketcher.Constraint("Horizontal", 27, 2, 52, 2))
sketch2.addConstraint(Sketcher.Constraint("Horizontal", 48, 2, 54, 2))
sketch2.addConstraint(Sketcher.Constraint("Horizontal", 54, 2, 56, 2))
sketch2.addConstraint(Sketcher.Constraint("Horizontal", 46, 2, 58, 2))
sketch2.addConstraint(Sketcher.Constraint("Vertical", 42, 2, 55, 2))
sketch2.addConstraint(Sketcher.Constraint("Vertical", 55, 2, 58, 2))
sketch2.addConstraint(Sketcher.Constraint("Equal", 22, 26))
sketch2.addConstraint(Sketcher.Constraint("Equal", 37, 48))
sketch2.addConstraint(Sketcher.Constraint("Equal", 54, 57))
sketch2.addConstraint(Sketcher.Constraint("Equal", 39, 42))
sketch2.addConstraint(Sketcher.Constraint("Radius", 1, Q("3.5 mm")))
sketch2.addConstraint(Sketcher.Constraint("Radius", 12, Q("4.5 mm")))
sketch2.addConstraint(Sketcher.Constraint("DistanceX", 2, 1, 2, 2, Q("4 mm")))
sketch2.addConstraint(Sketcher.Constraint("DistanceX", 8, 2, 8, 1, Q("10 mm")))
sketch2.addConstraint(Sketcher.Constraint("DistanceX", 22, 2, 22, 1, Q("6 mm")))
sketch2.addConstraint(Sketcher.Constraint("DistanceX", 4, 1, 4, 2, Q("164.9 mm")))
sketch2.addConstraint(Sketcher.Constraint("DistanceY", 3, 2, 3, 1, Q("4.5 mm")))
sketch2.addConstraint(Sketcher.Constraint("DistanceY", 9, 2, 9, 1, Q("9.5 mm")))
sketch2.addConstraint(Sketcher.Constraint("DistanceY", 21, 1, 21, 2, Q("9.2 mm")))
sketch2.addConstraint(Sketcher.Constraint("DistanceY", -1, 1, 12, 3, Q("0.2 mm")))
sketch2.addConstraint(Sketcher.Constraint("DistanceX", -1, 1, 12, 3, Q("55.65 mm")))
sketch2.addConstraint(Sketcher.Constraint("DistanceX", -1, 1, 17, 3, Q("45.95 mm")))
sketch2.addConstraint(Sketcher.Constraint("DistanceX", 29, 3, -1, 1, Q("31.13 mm")))
sketch2.addConstraint(Sketcher.Constraint("DistanceX", 34, 3, -1, 1, Q("40.83 mm")))
sketch2.addConstraint(Sketcher.Constraint("DistanceX", 40, 3, -1, 1, Q("50.53 mm")))
sketch2.addConstraint(Sketcher.Constraint("DistanceX", 44, 3, -1, 1, Q("60.23 mm")))
sketch2.addConstraint(Sketcher.Constraint("DistanceY", 38, 2, -1, 1, Q("4.65 mm")))
sketch2.addConstraint(Sketcher.Constraint("Distance", 11, Q("5.380642 mm")))
sketch2.addConstraint(Sketcher.Constraint("Distance", 55, Q("0.090812 mm")))
sketch2.addConstraint(Sketcher.Constraint("DistanceX", 0, 2, 0, 1, Q("10.355333 mm")))
sketch2.setExpression("Constraints[162]", "Params.sketch2_radius")
sketch2.setExpression("Constraints[163]", "Params.sketch2_radius2")
sketch2.setExpression("Constraints[164]", "Params.sketch2_width")
sketch2.setExpression("Constraints[165]", "Params.sketch2_width2")
sketch2.setExpression("Constraints[166]", "Params.sketch2_width3")
pad2 = body2.newObject("PartDesign::Pad", "Pad001")
pad2.Profile = sketch2
pad2.setExpression("Length", "Params.pad2_length")

doc.recompute()
